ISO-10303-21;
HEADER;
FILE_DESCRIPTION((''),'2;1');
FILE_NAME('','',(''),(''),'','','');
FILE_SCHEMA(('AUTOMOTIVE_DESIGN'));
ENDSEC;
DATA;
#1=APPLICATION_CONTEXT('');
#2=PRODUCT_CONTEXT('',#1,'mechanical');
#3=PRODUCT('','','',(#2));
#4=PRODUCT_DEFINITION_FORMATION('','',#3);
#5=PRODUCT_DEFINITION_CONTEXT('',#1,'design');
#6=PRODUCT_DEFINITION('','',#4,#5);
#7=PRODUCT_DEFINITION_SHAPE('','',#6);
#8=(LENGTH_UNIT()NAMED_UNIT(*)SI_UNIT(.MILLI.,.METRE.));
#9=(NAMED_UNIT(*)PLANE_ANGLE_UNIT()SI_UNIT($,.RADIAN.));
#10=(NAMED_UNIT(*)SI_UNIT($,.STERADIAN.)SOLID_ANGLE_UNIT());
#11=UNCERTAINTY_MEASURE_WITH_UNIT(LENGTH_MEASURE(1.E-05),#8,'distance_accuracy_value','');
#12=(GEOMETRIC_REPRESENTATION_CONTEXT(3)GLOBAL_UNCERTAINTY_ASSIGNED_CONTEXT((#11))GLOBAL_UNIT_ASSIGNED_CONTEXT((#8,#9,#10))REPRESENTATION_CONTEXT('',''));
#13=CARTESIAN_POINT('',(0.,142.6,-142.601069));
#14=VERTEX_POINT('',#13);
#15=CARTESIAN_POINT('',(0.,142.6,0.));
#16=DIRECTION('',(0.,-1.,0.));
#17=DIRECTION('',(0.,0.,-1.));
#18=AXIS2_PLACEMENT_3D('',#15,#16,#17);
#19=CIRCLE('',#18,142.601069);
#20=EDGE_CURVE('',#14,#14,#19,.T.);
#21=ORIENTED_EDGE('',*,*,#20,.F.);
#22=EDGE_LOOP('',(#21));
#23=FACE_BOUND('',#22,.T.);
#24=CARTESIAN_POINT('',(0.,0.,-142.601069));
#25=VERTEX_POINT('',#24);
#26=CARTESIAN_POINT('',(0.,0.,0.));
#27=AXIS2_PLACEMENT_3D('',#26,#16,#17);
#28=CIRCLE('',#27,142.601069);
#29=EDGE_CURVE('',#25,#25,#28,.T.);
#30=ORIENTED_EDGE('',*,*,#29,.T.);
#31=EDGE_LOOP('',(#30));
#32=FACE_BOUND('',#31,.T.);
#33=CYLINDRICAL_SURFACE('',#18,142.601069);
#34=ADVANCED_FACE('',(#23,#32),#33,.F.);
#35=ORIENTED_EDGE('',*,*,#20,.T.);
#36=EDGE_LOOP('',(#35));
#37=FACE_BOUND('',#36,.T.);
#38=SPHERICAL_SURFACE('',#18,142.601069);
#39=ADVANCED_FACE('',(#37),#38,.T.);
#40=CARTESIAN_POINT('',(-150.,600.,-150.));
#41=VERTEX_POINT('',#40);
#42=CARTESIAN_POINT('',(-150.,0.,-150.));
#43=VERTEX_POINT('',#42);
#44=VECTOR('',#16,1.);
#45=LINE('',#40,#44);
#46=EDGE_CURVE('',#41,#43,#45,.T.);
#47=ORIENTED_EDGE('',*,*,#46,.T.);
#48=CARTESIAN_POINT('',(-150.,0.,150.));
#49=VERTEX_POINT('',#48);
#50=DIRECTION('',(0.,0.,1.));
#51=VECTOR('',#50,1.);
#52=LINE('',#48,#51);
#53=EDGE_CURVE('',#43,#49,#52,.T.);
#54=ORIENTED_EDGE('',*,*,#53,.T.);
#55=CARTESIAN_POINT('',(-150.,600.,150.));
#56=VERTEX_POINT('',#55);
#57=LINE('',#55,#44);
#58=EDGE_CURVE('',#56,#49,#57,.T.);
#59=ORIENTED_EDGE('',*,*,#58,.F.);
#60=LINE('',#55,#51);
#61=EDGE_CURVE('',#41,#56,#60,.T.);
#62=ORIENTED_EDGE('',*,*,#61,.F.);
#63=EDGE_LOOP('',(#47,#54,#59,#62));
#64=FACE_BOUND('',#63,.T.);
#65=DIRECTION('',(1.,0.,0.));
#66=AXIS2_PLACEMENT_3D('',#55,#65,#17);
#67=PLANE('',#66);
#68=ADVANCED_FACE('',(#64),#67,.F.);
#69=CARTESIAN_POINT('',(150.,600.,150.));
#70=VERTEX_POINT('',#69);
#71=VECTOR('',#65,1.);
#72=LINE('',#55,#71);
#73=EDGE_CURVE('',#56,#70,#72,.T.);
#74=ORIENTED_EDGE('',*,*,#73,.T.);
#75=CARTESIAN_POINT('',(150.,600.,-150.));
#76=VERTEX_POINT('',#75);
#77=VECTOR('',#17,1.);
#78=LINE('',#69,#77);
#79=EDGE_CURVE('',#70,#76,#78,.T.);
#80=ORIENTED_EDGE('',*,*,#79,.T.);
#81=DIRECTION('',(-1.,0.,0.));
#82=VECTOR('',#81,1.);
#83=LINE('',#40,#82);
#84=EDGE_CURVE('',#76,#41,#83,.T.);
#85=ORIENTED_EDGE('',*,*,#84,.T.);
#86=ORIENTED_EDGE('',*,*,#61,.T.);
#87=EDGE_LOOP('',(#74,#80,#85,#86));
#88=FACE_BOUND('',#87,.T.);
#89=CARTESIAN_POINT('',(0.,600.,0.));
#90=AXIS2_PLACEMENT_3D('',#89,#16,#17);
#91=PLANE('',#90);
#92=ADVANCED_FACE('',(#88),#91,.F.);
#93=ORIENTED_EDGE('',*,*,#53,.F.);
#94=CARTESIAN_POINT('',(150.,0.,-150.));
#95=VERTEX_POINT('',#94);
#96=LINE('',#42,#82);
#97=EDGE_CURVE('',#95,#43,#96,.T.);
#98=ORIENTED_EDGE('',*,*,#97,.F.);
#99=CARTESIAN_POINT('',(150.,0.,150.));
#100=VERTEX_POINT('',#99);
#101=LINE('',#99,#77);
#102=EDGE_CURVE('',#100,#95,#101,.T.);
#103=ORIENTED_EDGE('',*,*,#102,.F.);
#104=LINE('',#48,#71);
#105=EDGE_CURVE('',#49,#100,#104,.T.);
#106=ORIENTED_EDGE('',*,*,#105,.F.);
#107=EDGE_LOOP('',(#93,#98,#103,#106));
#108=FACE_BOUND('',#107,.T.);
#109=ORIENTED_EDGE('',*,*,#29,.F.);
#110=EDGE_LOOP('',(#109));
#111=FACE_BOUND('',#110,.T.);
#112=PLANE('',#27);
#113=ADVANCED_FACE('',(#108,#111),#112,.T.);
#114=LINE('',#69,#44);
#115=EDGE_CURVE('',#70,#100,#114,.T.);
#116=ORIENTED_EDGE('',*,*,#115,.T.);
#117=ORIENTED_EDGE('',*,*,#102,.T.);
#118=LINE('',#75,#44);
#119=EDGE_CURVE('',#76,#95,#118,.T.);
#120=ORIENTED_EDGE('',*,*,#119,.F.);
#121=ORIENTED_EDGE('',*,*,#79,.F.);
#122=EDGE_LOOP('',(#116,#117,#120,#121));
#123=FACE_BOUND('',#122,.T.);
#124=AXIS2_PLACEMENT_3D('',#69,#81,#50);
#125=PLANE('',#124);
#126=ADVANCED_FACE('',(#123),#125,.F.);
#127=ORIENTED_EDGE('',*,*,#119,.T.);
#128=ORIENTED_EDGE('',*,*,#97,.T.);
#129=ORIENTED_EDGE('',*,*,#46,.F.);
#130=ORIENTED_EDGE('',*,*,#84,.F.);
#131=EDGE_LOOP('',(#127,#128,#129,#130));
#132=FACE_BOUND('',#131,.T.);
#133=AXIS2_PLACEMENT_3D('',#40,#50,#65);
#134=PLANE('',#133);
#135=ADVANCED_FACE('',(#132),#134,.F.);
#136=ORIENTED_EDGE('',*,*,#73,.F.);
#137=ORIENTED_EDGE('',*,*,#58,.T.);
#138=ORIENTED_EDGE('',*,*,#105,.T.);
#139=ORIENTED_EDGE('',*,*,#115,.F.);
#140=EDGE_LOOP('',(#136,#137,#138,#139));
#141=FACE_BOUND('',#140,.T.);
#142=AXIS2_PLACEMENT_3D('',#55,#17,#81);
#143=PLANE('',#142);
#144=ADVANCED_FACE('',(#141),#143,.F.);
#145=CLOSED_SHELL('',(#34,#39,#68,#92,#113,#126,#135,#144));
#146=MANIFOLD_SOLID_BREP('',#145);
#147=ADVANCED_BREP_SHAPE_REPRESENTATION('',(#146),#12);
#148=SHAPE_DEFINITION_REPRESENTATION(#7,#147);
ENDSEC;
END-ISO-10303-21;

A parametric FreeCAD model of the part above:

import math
import FreeCAD as App
import Part
import Sketcher
from FreeCAD import Vector


def add_polygon(sketch, points):
    """Adds a closed chain of lines whose ends are joined by coincident constraints."""
    first, n = sketch.GeometryCount, len(points)
    for a, b in zip(points, points[1:] + points[:1]):
        sketch.addGeometry(Part.LineSegment(App.Vector(*a, 0), App.Vector(*b, 0)), False)
    for i in range(n):
        sketch.addConstraint(Sketcher.Constraint("Coincident", first + i, 2, first + (i + 1) % n, 1))

doc = App.newDocument("Part")
body = doc.addObject("PartDesign::Body", "Body")

# Sketch on XZ plane
sketch1 = body.newObject("Sketcher::SketchObject", "Sketch")
sketch1.AttachmentSupport = (doc.getObject("XZ_Plane"), [""])
sketch1.MapMode = "FlatFace"
add_polygon(sketch1, [(-150, -150), (-150, 150), (150, 150), (150, -150)])  # lines 0-3
sketch1.addConstraint(Sketcher.Constraint("Vertical", 0))
sketch1.addConstraint(Sketcher.Constraint("Horizontal", 1))
sketch1.addConstraint(Sketcher.Constraint("Vertical", 2))
sketch1.addConstraint(Sketcher.Constraint("Horizontal", 3))
sketch1.addConstraint(Sketcher.Constraint("Symmetric", 0, 2, 2, 2, -1, 1))
sketch1.addConstraint(Sketcher.Constraint("Equal", 3, 0))
sketch1.addConstraint(Sketcher.Constraint("DistanceX", 1, 1, 1, 2, 300.0))
pad1 = body.newObject("PartDesign::Pad", "Pad")
pad1.Profile = sketch1
pad1.Length = 600
pad1.Reversed = True

# Sketch on XZ plane
sketch2 = body.newObject("Sketcher::SketchObject", "Sketch001")
sketch2.AttachmentSupport = (doc.getObject("XZ_Plane"), [""])
sketch2.MapMode = "FlatFace"
sketch2.addGeometry(Part.Circle(Vector(0, 0, 0), Vector(0, 0, 1), 143), False)
sketch2.addConstraint(Sketcher.Constraint("Coincident", 0, 3, -1, 1))
sketch2.addConstraint(Sketcher.Constraint("Diameter", 0, 285.202139))
pocket1 = body.newObject("PartDesign::Pocket", "Pocket")
pocket1.Profile = sketch2
pocket1.Length = 142.6

# Sketch on XZ plane
sketch3 = body.newObject("Sketcher::SketchObject", "Sketch002")
sketch3.AttachmentSupport = (doc.getObject("XZ_Plane"), [""])
sketch3.MapMode = "FlatFace"
sketch3.AttachmentOffset = App.Placement(Vector(0, 0, -142.6), App.Rotation())
sketch3.addGeometry(Part.LineSegment(Vector(0, -143, 0), Vector(0, 143, 0)), False)
sketch3.addGeometry(Part.ArcOfCircle(Part.Circle(Vector(0, 0, 0), Vector(0, 0, 1), 143), math.radians(90), math.radians(270)), False)
sketch3.addConstraint(Sketcher.Constraint("Coincident", 0, 1, 1, 2))
sketch3.addConstraint(Sketcher.Constraint("Coincident", 1, 1, 0, 2))
sketch3.addConstraint(Sketcher.Constraint("Vertical", 0))
sketch3.addConstraint(Sketcher.Constraint("Coincident", 1, 3, -1, 1))
sketch3.addConstraint(Sketcher.Constraint("PointOnObject", 0, 1, -2))
sketch3.addConstraint(Sketcher.Constraint("Radius", 1, 142.601069))
revolution = body.newObject("PartDesign::Revolution", "Revolution")
revolution.Profile = sketch3
revolution.ReferenceAxis = (sketch3, ["V_Axis"])
revolution.Angle = 180

doc.recompute()
